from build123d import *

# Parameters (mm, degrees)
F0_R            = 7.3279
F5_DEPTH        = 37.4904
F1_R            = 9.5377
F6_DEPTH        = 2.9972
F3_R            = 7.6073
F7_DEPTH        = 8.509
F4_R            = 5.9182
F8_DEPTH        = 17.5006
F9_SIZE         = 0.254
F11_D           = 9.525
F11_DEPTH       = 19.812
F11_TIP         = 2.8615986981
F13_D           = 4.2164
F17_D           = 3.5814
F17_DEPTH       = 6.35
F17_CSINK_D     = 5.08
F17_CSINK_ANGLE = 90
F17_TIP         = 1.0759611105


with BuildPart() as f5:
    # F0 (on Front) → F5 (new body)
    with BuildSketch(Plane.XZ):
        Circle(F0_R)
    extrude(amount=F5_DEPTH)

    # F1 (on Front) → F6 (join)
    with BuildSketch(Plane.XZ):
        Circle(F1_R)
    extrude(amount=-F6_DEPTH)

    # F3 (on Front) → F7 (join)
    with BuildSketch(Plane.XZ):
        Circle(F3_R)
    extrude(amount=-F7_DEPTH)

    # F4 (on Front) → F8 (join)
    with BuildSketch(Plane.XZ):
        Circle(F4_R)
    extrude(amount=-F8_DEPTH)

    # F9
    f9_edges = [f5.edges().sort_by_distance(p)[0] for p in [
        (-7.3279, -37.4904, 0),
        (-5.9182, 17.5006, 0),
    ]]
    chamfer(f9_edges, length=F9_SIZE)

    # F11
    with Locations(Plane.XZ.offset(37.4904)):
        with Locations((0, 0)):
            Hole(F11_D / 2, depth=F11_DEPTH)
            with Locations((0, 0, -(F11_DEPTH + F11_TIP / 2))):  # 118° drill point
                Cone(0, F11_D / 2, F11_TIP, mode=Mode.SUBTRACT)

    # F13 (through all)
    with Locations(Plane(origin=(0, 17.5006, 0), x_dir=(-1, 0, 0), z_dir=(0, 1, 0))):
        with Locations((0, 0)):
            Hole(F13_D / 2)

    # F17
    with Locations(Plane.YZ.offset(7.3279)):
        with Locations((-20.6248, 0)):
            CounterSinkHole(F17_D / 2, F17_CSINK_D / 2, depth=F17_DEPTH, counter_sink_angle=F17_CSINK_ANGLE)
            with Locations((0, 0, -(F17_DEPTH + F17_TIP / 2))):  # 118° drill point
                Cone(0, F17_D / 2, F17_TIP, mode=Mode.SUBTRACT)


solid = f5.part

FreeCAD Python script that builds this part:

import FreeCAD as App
import Part
import Sketcher
Q = App.Units.Quantity


def edges_at(feature, points):
    """Names of the edges that pass closest to the given points."""
    edges = feature.Shape.Edges
    near = lambda p: min(range(len(edges)), key=lambda i: edges[i].distToShape(Part.Vertex(*p))[0])
    return sorted({f"Edge{near(p) + 1}" for p in points})

doc = App.newDocument("Part")
body = doc.addObject("PartDesign::Body", "Body")

sketch1 = doc.addObject("Sketcher::SketchObject", "Sketch")
body.addObject(sketch1)
sketch1.AttachmentSupport = (doc.XZ_Plane, [""])
sketch1.MapMode = "FlatFace"
sketch1.addGeometry(Part.Circle(App.Vector(0, 0, 0), App.Vector(0, 0, 1), 7.3279), False)
sketch1.addConstraint([
    Sketcher.Constraint("Coincident", 0, 3, -1, 1),
    Sketcher.Constraint("Diameter", 0, Q("0.577 in")),
])
pad1 = doc.addObject("PartDesign::Pad", "Pad")
body.addObject(pad1)
pad1.Profile = sketch1
pad1.Length = Q("1.476 in")

sketch2 = doc.addObject("Sketcher::SketchObject", "Sketch001")
body.addObject(sketch2)
sketch2.AttachmentSupport = (doc.XZ_Plane, [""])
sketch2.MapMode = "FlatFace"
sketch2.addGeometry(Part.Circle(App.Vector(0, 0, 0), App.Vector(0, 0, 1), 9.5377), False)
sketch2.addConstraint([
    Sketcher.Constraint("Coincident", 0, 3, -1, 1),
    Sketcher.Constraint("Diameter", 0, Q("0.751 in")),
])
pad2 = doc.addObject("PartDesign::Pad", "Pad001")
body.addObject(pad2)
pad2.Profile = sketch2
pad2.Length = Q("0.118 in")
pad2.Reversed = True

sketch3 = doc.addObject("Sketcher::SketchObject", "Sketch002")
body.addObject(sketch3)
sketch3.AttachmentSupport = (doc.XZ_Plane, [""])
sketch3.MapMode = "FlatFace"
sketch3.addGeometry(Part.Circle(App.Vector(0, 0, 0), App.Vector(0, 0, 1), 7.6073), False)
sketch3.addConstraint([
    Sketcher.Constraint("Coincident", 0, 3, -1, 1),
    Sketcher.Constraint("Diameter", 0, Q("0.599 in")),
])
pad3 = doc.addObject("PartDesign::Pad", "Pad002")
body.addObject(pad3)
pad3.Profile = sketch3
pad3.Length = Q("0.335 in")
pad3.Reversed = True

sketch4 = doc.addObject("Sketcher::SketchObject", "Sketch003")
body.addObject(sketch4)
sketch4.AttachmentSupport = (doc.XZ_Plane, [""])
sketch4.MapMode = "FlatFace"
sketch4.addGeometry(Part.Circle(App.Vector(0, 0, 0), App.Vector(0, 0, 1), 5.9182), False)
sketch4.addConstraint([
    Sketcher.Constraint("Coincident", 0, 3, -1, 1),
    Sketcher.Constraint("Diameter", 0, Q("0.466 in")),
])
pad4 = doc.addObject("PartDesign::Pad", "Pad003")
body.addObject(pad4)
pad4.Profile = sketch4
pad4.Length = Q("0.689 in")
pad4.Reversed = True
doc.recompute()

chamfer = doc.addObject("PartDesign::Chamfer", "Chamfer")
body.addObject(chamfer)
chamfer.Base = (pad4, edges_at(pad4, [(-7.328, -37.49, 0), (-5.918, 17.501, 0)]))
chamfer.Size = Q("0.01 in")

sketch5 = doc.addObject("Sketcher::SketchObject", "Sketch004")
body.addObject(sketch5)
sketch5.AttachmentSupport = (doc.XZ_Plane, [""])
sketch5.MapMode = "FlatFace"
sketch5.AttachmentOffset = App.Placement(App.Vector(0, 0, 1.476 * 25.4), App.Rotation())
sketch5.addGeometry(Part.Circle(App.Vector(0, 0, 0), App.Vector(0, 0, 1), 4.7625), False)
sketch5.addConstraint([
    Sketcher.Constraint("Coincident", 0, 3, -1, 1),
    Sketcher.Constraint("Diameter", 0, Q("0.375 in")),
])
doc.recompute()
hole = doc.addObject("PartDesign::Hole", "Hole")
body.addObject(hole)
hole.Profile = sketch5
hole.ThreadType = "None"
hole.Diameter = Q("0.375 in")
hole.DepthType = "Dimension"
hole.Depth = Q("0.78 in")
hole.DrillPoint = "Angled"
hole.DrillPointAngle = 118

sketch6 = doc.addObject("Sketcher::SketchObject", "Sketch005")
body.addObject(sketch6)
sketch6.AttachmentSupport = (doc.XZ_Plane, [""])
sketch6.MapMode = "FlatFace"
sketch6.AttachmentOffset = App.Placement(App.Vector(0, 0, -0.689 * 25.4), App.Rotation())
sketch6.addGeometry(Part.Circle(App.Vector(0, 0, 0), App.Vector(0, 0, 1), 2.1082), False)
sketch6.addConstraint([
    Sketcher.Constraint("Coincident", 0, 3, -1, 1),
    Sketcher.Constraint("Diameter", 0, Q("0.166 in")),
])
doc.recompute()
hole2 = doc.addObject("PartDesign::Hole", "Hole001")
body.addObject(hole2)
hole2.Profile = sketch6
hole2.ThreadType = "None"
hole2.Diameter = Q("0.166 in")
hole2.DepthType = "ThroughAll"
hole2.Reversed = True

sketch7 = doc.addObject("Sketcher::SketchObject", "Sketch006")
body.addObject(sketch7)
sketch7.AttachmentSupport = (doc.YZ_Plane, [""])
sketch7.MapMode = "FlatFace"
sketch7.AttachmentOffset = App.Placement(App.Vector(0, 0, 0.2885 * 25.4), App.Rotation())
sketch7.addGeometry(Part.Circle(App.Vector(-20.6248, 0, 0), App.Vector(0, 0, 1), 1.7907), False)
sketch7.addConstraint([
    Sketcher.Constraint("PointOnObject", 0, 3, -1),
    Sketcher.Constraint("Diameter", 0, Q("0.141 in")),
    Sketcher.Constraint("DistanceX", 0, 3, -1, 1, Q("0.812 in")),
])
doc.recompute()
hole3 = doc.addObject("PartDesign::Hole", "Hole002")
body.addObject(hole3)
hole3.Profile = sketch7
hole3.ThreadType = "None"
hole3.Diameter = Q("0.141 in")
hole3.DepthType = "Dimension"
hole3.Depth = Q("0.25 in")
hole3.DrillPoint = "Angled"
hole3.DrillPointAngle = 118
hole3.HoleCutType = "Countersink"
hole3.HoleCutDiameter = Q("0.2 in")
hole3.HoleCutCountersinkAngle = 90

doc.recompute()
